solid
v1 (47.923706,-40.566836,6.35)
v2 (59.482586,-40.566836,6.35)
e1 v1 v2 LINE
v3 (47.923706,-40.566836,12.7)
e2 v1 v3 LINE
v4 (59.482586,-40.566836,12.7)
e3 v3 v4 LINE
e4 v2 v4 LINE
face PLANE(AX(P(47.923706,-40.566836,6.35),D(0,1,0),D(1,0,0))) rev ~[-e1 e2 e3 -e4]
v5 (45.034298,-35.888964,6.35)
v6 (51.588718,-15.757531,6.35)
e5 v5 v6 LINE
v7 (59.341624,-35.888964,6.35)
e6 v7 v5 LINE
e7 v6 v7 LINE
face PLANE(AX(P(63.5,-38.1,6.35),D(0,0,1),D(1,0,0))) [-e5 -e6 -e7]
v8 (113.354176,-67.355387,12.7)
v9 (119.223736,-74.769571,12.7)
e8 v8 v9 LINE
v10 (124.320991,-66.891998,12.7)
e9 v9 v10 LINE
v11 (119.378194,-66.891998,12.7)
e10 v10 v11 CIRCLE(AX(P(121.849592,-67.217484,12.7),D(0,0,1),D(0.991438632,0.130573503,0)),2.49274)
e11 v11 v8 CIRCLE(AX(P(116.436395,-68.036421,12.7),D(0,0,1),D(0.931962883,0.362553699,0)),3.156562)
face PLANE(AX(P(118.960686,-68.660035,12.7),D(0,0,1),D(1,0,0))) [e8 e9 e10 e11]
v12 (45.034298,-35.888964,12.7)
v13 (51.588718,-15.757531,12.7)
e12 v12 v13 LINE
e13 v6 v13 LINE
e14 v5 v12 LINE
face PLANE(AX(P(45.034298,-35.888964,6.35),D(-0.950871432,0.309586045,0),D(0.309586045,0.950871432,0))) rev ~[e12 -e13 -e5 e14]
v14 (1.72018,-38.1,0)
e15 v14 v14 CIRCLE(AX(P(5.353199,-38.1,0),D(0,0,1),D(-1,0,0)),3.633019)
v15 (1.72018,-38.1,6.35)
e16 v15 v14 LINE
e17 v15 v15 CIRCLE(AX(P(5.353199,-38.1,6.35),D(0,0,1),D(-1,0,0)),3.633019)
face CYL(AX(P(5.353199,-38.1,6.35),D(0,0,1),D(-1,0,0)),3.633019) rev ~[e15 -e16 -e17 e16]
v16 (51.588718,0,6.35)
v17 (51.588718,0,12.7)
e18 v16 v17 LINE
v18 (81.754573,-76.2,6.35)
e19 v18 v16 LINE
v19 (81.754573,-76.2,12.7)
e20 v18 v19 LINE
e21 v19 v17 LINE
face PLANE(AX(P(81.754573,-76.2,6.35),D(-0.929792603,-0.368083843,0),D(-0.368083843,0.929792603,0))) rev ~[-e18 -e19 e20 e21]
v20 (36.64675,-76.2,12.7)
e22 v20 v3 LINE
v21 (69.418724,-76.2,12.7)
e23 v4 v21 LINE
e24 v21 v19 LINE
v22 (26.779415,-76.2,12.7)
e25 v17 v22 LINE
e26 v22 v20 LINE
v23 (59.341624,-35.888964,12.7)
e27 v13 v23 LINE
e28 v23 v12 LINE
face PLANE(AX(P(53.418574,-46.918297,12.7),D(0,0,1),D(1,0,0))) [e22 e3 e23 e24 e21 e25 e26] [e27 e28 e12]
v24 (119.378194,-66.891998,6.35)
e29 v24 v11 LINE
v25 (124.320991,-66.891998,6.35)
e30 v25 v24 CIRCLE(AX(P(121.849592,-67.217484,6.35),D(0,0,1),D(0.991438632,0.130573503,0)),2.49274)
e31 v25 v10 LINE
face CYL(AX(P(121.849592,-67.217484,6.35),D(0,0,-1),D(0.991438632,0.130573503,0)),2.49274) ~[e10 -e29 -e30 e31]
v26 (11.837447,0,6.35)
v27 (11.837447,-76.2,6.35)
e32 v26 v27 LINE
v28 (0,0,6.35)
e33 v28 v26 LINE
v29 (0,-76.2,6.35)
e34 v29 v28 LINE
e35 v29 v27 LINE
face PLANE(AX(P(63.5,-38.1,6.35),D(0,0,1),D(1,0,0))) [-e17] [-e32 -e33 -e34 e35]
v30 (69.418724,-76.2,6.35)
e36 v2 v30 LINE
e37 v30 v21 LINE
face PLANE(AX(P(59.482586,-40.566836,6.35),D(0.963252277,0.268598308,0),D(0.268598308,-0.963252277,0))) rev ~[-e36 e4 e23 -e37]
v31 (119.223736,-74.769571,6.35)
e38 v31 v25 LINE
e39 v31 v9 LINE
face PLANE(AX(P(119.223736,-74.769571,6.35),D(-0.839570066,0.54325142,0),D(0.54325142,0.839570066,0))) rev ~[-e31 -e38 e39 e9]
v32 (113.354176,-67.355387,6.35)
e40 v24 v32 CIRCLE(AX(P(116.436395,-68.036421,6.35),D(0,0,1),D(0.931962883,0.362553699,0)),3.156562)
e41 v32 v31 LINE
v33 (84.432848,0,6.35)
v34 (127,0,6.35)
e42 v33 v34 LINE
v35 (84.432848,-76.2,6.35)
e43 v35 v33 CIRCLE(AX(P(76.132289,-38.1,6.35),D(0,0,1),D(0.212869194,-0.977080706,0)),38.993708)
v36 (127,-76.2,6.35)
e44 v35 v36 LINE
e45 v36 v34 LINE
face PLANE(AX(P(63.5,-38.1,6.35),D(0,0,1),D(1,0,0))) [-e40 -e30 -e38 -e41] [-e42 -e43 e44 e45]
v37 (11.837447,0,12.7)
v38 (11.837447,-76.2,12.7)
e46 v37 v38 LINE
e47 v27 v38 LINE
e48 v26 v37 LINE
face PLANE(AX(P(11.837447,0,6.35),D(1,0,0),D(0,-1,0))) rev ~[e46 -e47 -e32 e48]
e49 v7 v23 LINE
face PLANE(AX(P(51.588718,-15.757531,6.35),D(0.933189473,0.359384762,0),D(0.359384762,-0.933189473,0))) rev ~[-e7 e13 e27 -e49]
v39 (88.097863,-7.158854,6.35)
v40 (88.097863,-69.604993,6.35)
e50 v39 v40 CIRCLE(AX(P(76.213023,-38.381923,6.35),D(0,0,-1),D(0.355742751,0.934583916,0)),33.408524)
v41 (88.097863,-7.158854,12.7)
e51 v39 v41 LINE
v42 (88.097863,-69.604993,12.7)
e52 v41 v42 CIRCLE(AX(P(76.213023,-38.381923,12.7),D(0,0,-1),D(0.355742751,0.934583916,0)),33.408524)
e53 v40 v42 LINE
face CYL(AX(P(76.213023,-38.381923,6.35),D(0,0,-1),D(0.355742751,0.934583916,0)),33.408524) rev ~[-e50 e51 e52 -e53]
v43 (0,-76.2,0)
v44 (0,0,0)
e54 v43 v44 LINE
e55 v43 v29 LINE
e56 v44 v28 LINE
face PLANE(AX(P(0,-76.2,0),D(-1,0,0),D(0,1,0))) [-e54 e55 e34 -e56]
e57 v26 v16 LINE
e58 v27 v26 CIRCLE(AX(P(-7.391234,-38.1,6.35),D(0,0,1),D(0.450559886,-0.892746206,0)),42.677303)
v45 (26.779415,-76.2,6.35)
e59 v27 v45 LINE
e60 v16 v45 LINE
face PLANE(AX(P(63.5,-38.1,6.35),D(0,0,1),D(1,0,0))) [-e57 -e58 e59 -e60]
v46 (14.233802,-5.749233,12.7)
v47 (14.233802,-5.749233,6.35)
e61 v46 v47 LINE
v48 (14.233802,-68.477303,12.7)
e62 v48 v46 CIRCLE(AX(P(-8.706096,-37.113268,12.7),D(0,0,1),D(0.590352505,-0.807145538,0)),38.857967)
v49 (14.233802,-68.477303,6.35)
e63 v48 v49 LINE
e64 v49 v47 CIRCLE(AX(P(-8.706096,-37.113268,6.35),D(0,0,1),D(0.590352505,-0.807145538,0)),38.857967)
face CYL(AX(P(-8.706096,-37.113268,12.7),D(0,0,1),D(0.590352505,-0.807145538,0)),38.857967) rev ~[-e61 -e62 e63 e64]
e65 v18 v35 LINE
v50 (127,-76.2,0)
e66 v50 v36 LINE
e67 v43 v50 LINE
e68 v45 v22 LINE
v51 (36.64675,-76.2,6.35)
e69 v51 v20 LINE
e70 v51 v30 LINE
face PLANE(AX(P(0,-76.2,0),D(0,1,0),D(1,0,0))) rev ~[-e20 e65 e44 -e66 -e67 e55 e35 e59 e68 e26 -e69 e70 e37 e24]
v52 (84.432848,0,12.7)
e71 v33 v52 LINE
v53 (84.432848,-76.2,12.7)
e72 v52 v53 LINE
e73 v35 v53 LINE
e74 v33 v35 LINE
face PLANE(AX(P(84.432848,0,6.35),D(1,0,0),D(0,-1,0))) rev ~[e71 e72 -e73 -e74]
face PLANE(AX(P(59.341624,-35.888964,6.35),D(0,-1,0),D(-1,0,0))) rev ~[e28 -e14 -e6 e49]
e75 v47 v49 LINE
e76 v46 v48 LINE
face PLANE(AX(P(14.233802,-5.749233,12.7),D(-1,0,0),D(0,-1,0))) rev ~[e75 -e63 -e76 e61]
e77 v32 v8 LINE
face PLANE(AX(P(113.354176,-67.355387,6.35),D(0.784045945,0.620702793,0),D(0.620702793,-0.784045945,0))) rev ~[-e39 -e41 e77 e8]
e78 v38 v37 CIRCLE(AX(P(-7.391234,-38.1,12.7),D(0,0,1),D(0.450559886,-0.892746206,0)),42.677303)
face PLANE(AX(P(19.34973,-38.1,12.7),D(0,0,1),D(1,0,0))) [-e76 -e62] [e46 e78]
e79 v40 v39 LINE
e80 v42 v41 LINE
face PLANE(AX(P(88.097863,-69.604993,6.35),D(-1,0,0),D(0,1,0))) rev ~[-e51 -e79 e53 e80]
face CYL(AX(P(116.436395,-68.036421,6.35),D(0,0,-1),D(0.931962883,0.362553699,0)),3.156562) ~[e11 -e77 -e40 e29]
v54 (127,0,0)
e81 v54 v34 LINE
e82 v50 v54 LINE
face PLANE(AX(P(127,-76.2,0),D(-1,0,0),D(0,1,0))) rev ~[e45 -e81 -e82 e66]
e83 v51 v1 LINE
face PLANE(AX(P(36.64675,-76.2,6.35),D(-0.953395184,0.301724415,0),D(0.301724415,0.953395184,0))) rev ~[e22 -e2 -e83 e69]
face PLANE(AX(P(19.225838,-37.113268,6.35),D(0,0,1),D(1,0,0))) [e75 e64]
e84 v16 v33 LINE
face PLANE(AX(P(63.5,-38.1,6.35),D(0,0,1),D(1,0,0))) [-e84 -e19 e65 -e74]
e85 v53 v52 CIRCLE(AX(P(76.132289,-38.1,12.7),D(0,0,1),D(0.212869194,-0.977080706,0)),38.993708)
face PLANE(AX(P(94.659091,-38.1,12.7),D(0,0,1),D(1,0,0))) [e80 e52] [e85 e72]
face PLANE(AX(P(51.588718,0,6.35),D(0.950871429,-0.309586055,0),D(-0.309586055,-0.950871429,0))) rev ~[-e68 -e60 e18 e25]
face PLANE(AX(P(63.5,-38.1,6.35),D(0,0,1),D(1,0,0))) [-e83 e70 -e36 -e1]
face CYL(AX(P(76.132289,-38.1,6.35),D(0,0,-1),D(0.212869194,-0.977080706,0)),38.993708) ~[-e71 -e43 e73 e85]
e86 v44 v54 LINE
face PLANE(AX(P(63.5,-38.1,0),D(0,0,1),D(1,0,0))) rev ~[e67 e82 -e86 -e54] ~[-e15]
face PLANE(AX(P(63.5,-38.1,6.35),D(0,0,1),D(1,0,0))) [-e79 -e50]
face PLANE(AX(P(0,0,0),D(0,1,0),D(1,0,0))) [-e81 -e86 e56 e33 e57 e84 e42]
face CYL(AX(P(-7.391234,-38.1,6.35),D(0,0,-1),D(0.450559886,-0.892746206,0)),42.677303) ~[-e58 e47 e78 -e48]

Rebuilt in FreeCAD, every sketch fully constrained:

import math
import FreeCAD as App
import Part
import Sketcher
from FreeCAD import Vector
Q = App.Units.Quantity

doc = App.newDocument("Part")
body = doc.addObject("PartDesign::Body", "Body")

# Sketch on XY plane
sketch1 = body.newObject("Sketcher::SketchObject", "Sketch")
sketch1.AttachmentSupport = (doc.getObject("XY_Plane"), [""])
sketch1.MapMode = "FlatFace"
sketch1.addGeometry([
    Part.LineSegment(Vector(0, 0, 0), Vector(0, -76, 0)),
    Part.LineSegment(Vector(0, -76, 0), Vector(127, -76, 0)),
    Part.LineSegment(Vector(127, -76, 0), Vector(127, 0, 0)),
    Part.LineSegment(Vector(127, 0, 0), Vector(0, 0, 0)),
], False)
sketch1.addConstraint([
    Sketcher.Constraint("Coincident", 0, 2, 1, 1),
    Sketcher.Constraint("Coincident", 1, 2, 2, 1),
    Sketcher.Constraint("Coincident", 2, 2, 3, 1),
    Sketcher.Constraint("Coincident", 3, 2, 0, 1),
    Sketcher.Constraint("Vertical", 0),
    Sketcher.Constraint("Horizontal", 1),
    Sketcher.Constraint("Vertical", 2),
    Sketcher.Constraint("Horizontal", 3),
    Sketcher.Constraint("Coincident", 3, 2, -1, 1),
    Sketcher.Constraint("DistanceX", 1, 1, 1, 2, Q("5 in")),
    Sketcher.Constraint("DistanceY", 0, 2, 0, 1, Q("3 in")),
])
pad1 = body.newObject("PartDesign::Pad", "Pad")
pad1.Profile = sketch1
pad1.Length = Q("0.25 in")

# Sketch on XY plane
sketch2 = body.newObject("Sketcher::SketchObject", "Sketch001")
sketch2.AttachmentSupport = (doc.getObject("XY_Plane"), [""])
sketch2.MapMode = "FlatFace"
sketch2.AttachmentOffset = App.Placement(Vector(0, 0, 0.25 * 25.4), App.Rotation())
sketch2.addGeometry(Part.Circle(Vector(5.4, -38.1, 0), Vector(0, 0, 1), 3.6), False)
sketch2.addConstraint([
    Sketcher.Constraint("DistanceY", 0, 3, -1, 1, Q("1.5 in")),
    Sketcher.Constraint("Diameter", 0, 7.266038),
    Sketcher.Constraint("DistanceX", -1, 1, 0, 3, 5.353199),
])
pocket1 = body.newObject("PartDesign::Pocket", "Pocket")
pocket1.Profile = sketch2
pocket1.Type = "ThroughAll"

# Sketch on XY plane
sketch3 = body.newObject("Sketcher::SketchObject", "Sketch002")
sketch3.AttachmentSupport = (doc.getObject("XY_Plane"), [""])
sketch3.MapMode = "FlatFace"
sketch3.AttachmentOffset = App.Placement(Vector(0, 0, 0.25 * 25.4), App.Rotation())
sketch3.addGeometry([
    Part.ArcOfCircle(Part.Circle(Vector(-7, -38, 0), Vector(0, 0, 1), 43), math.radians(-63), math.radians(63)),
    Part.LineSegment(Vector(12, 0, 0), Vector(12, -76, 0)),
], False)
sketch3.addConstraint([
    Sketcher.Constraint("Coincident", 0, 1, 1, 2),
    Sketcher.Constraint("Coincident", 1, 1, 0, 2),
    Sketcher.Constraint("Vertical", 1),
    Sketcher.Constraint("PointOnObject", 1, 1, -1),
    Sketcher.Constraint("DistanceY", 1, 2, 1, 1, Q("3 in")),
    Sketcher.Constraint("Radius", 0, 42.677303),
    Sketcher.Constraint("DistanceX", 0, 3, -1, 1, 7.391234),
])
pad2 = body.newObject("PartDesign::Pad", "Pad001")
pad2.Profile = sketch3
pad2.Length = Q("0.25 in")

# Sketch on XY plane
sketch4 = body.newObject("Sketcher::SketchObject", "Sketch003")
sketch4.AttachmentSupport = (doc.getObject("XY_Plane"), [""])
sketch4.MapMode = "FlatFace"
sketch4.AttachmentOffset = App.Placement(Vector(0, 0, 0.5 * 25.4), App.Rotation())
sketch4.addGeometry([
    Part.ArcOfCircle(Part.Circle(Vector(-9, -37, 0), Vector(0, 0, 1), 39), math.radians(-54), math.radians(54)),
    Part.LineSegment(Vector(14, -6, 0), Vector(14, -68, 0)),
], False)
sketch4.addConstraint([
    Sketcher.Constraint("Coincident", 0, 1, 1, 2),
    Sketcher.Constraint("Coincident", 1, 1, 0, 2),
    Sketcher.Constraint("Vertical", 1),
    Sketcher.Constraint("Radius", 0, 38.857967),
    Sketcher.Constraint("DistanceY", 1, 2, 1, 1, 62.72807),
    Sketcher.Constraint("DistanceX", -1, 1, 0, 1, 14.233802),
    Sketcher.Constraint("DistanceY", 0, 3, -1, 1, 37.113268),
])
pocket2 = body.newObject("PartDesign::Pocket", "Pocket001")
pocket2.Profile = sketch4
pocket2.Length = Q("0.25 in")

# Sketch on XY plane
sketch5 = body.newObject("Sketcher::SketchObject", "Sketch004")
sketch5.AttachmentSupport = (doc.getObject("XY_Plane"), [""])
sketch5.MapMode = "FlatFace"
sketch5.AttachmentOffset = App.Placement(Vector(0, 0, 0.25 * 25.4), App.Rotation())
sketch5.addGeometry([
    Part.LineSegment(Vector(82, -76, 0), Vector(52, 0, 0)),  # 0
    Part.LineSegment(Vector(52, 0, 0), Vector(27, -76, 0)),  # 1
    Part.LineSegment(Vector(27, -76, 0), Vector(37, -76, 0)),  # 2
    Part.LineSegment(Vector(37, -76, 0), Vector(48, -41, 0)),  # 3
    Part.LineSegment(Vector(48, -41, 0), Vector(59, -41, 0)),  # 4
    Part.LineSegment(Vector(59, -41, 0), Vector(69, -76, 0)),  # 5
    Part.LineSegment(Vector(69, -76, 0), Vector(82, -76, 0)),  # 6
    Part.LineSegment(Vector(59, -36, 0), Vector(45, -36, 0)),  # 7
    Part.LineSegment(Vector(45, -36, 0), Vector(52, -16, 0)),  # 8
    Part.LineSegment(Vector(52, -16, 0), Vector(59, -36, 0)),  # 9
], False)
sketch5.addConstraint([
    Sketcher.Constraint("Coincident", 0, 2, 1, 1),
    Sketcher.Constraint("Coincident", 1, 2, 2, 1),
    Sketcher.Constraint("Coincident", 2, 2, 3, 1),
    Sketcher.Constraint("Coincident", 3, 2, 4, 1),
    Sketcher.Constraint("Coincident", 4, 2, 5, 1),
    Sketcher.Constraint("Coincident", 5, 2, 6, 1),
    Sketcher.Constraint("Coincident", 6, 2, 0, 1),
    Sketcher.Constraint("Coincident", 7, 2, 8, 1),
    Sketcher.Constraint("Coincident", 8, 2, 9, 1),
    Sketcher.Constraint("Coincident", 9, 2, 7, 1),
    Sketcher.Constraint("Horizontal", 2),
    Sketcher.Constraint("Horizontal", 4),
    Sketcher.Constraint("Horizontal", 6),
    Sketcher.Constraint("Horizontal", 7),
    Sketcher.Constraint("PointOnObject", 0, 2, -1),
    Sketcher.Constraint("Parallel", 1, 8),
    Sketcher.Constraint("Horizontal", 2, 2, 5, 2),
    Sketcher.Constraint("Vertical", 0, 2, 8, 2),
    Sketcher.Constraint("DistanceY", 1, 2, -1, 1, Q("3 in")),
    Sketcher.Constraint("Distance", 5, Q("1.4563999 in")),
    Sketcher.Constraint("DistanceX", 4, 1, 4, 2, 11.55888),
    Sketcher.Constraint("DistanceX", 6, 1, 6, 2, 12.335849),
    Sketcher.Constraint("Distance", 0, 81.95376),
    Sketcher.Constraint("Distance", 3, 37.37502),
    Sketcher.Constraint("Distance", 8, 21.171561),
    Sketcher.Constraint("DistanceX", 2, 1, 2, 2, 9.867335),
    Sketcher.Constraint("DistanceX", 7, 2, 7, 1, 14.307326),
    Sketcher.Constraint("DistanceX", -1, 1, 2, 2, 36.64675),
    Sketcher.Constraint("DistanceY", 8, 2, -1, 1, 15.757531),
    Sketcher.Constraint("DistanceX", 2, 2, 0, 2, 14.941968),
])
pad3 = body.newObject("PartDesign::Pad", "Pad002")
pad3.Profile = sketch5
pad3.Length = Q("0.25 in")

# Sketch on XY plane
sketch6 = body.newObject("Sketcher::SketchObject", "Sketch005")
sketch6.AttachmentSupport = (doc.getObject("XY_Plane"), [""])
sketch6.MapMode = "FlatFace"
sketch6.AttachmentOffset = App.Placement(Vector(0, 0, 0.25 * 25.4), App.Rotation())
sketch6.addGeometry([
    Part.LineSegment(Vector(84, 0, 0), Vector(84, -76, 0)),
    Part.ArcOfCircle(Part.Circle(Vector(76, -38, 0), Vector(0, 0, 1), 39), math.radians(-78), math.radians(78)),
    Part.ArcOfCircle(Part.Circle(Vector(76, -38, 0), Vector(0, 0, 1), 33), math.radians(-69), math.radians(69)),
    Part.LineSegment(Vector(88, -70, 0), Vector(88, -7, 0)),
], False)
sketch6.addConstraint([
    Sketcher.Constraint("Coincident", 0, 1, 1, 2),
    Sketcher.Constraint("Coincident", 1, 1, 0, 2),
    Sketcher.Constraint("Coincident", 2, 1, 3, 1),
    Sketcher.Constraint("Coincident", 3, 2, 2, 2),
    Sketcher.Constraint("Vertical", 0),
    Sketcher.Constraint("Vertical", 3),
    Sketcher.Constraint("PointOnObject", 0, 1, -1),
    Sketcher.Constraint("DistanceY", 0, 2, 0, 1, Q("3 in")),
    Sketcher.Constraint("Radius", 1, 38.993708),
    Sketcher.Constraint("Radius", 2, 33.408524),
    Sketcher.Constraint("DistanceY", 3, 1, 3, 2, 62.446139),
    Sketcher.Constraint("DistanceX", -1, 1, 1, 3, 76.132289),
    Sketcher.Constraint("DistanceX", -1, 1, 2, 3, 76.213023),
    Sketcher.Constraint("DistanceY", 2, 3, -1, 1, 38.381923),
])
pad4 = body.newObject("PartDesign::Pad", "Pad003")
pad4.Profile = sketch6
pad4.Length = Q("0.25 in")

# Sketch on XY plane
sketch7 = body.newObject("Sketcher::SketchObject", "Sketch006")
sketch7.AttachmentSupport = (doc.getObject("XY_Plane"), [""])
sketch7.MapMode = "FlatFace"
sketch7.AttachmentOffset = App.Placement(Vector(0, 0, 0.25 * 25.4), App.Rotation())
sketch7.addGeometry([
    Part.ArcOfCircle(Part.Circle(Vector(116.4, -68, 0), Vector(0, 0, 1), 3.2), math.radians(21), math.radians(168)),
    Part.LineSegment(Vector(113.4, -67.4, 0), Vector(119.2, -74.8, 0)),
    Part.LineSegment(Vector(119.2, -74.8, 0), Vector(124.3, -66.9, 0)),
    Part.ArcOfCircle(Part.Circle(Vector(121.8, -67.2, 0), Vector(0, 0, 1), 2.5), math.radians(8), math.radians(172)),
], False)
sketch7.addConstraint([
    Sketcher.Constraint("Coincident", 0, 2, 1, 1),
    Sketcher.Constraint("Coincident", 1, 2, 2, 1),
    Sketcher.Constraint("Coincident", 2, 2, 3, 1),
    Sketcher.Constraint("Coincident", 3, 2, 0, 1),
    Sketcher.Constraint("Horizontal", 2, 2, 3, 2),
    Sketcher.Constraint("Radius", 3, 2.49274),
    Sketcher.Constraint("Radius", 0, 3.156562),
    Sketcher.Constraint("DistanceY", 2, 2, -1, 1, 66.891998),
    Sketcher.Constraint("DistanceX", 3, 3, 2, 2, 2.471399),
    Sketcher.Constraint("DistanceX", 0, 3, 3, 2, 2.941799),
    Sketcher.Constraint("DistanceY", 1, 2, -1, 1, 74.769571),
    Sketcher.Constraint("DistanceX", -1, 1, 2, 2, 124.320991),
    Sketcher.Constraint("DistanceX", 0, 2, 0, 3, 3.082219),
    Sketcher.Constraint("DistanceX", 0, 3, 1, 2, 2.787341),
])
pad5 = body.newObject("PartDesign::Pad", "Pad004")
pad5.Profile = sketch7
pad5.Length = Q("0.25 in")

doc.recompute()
